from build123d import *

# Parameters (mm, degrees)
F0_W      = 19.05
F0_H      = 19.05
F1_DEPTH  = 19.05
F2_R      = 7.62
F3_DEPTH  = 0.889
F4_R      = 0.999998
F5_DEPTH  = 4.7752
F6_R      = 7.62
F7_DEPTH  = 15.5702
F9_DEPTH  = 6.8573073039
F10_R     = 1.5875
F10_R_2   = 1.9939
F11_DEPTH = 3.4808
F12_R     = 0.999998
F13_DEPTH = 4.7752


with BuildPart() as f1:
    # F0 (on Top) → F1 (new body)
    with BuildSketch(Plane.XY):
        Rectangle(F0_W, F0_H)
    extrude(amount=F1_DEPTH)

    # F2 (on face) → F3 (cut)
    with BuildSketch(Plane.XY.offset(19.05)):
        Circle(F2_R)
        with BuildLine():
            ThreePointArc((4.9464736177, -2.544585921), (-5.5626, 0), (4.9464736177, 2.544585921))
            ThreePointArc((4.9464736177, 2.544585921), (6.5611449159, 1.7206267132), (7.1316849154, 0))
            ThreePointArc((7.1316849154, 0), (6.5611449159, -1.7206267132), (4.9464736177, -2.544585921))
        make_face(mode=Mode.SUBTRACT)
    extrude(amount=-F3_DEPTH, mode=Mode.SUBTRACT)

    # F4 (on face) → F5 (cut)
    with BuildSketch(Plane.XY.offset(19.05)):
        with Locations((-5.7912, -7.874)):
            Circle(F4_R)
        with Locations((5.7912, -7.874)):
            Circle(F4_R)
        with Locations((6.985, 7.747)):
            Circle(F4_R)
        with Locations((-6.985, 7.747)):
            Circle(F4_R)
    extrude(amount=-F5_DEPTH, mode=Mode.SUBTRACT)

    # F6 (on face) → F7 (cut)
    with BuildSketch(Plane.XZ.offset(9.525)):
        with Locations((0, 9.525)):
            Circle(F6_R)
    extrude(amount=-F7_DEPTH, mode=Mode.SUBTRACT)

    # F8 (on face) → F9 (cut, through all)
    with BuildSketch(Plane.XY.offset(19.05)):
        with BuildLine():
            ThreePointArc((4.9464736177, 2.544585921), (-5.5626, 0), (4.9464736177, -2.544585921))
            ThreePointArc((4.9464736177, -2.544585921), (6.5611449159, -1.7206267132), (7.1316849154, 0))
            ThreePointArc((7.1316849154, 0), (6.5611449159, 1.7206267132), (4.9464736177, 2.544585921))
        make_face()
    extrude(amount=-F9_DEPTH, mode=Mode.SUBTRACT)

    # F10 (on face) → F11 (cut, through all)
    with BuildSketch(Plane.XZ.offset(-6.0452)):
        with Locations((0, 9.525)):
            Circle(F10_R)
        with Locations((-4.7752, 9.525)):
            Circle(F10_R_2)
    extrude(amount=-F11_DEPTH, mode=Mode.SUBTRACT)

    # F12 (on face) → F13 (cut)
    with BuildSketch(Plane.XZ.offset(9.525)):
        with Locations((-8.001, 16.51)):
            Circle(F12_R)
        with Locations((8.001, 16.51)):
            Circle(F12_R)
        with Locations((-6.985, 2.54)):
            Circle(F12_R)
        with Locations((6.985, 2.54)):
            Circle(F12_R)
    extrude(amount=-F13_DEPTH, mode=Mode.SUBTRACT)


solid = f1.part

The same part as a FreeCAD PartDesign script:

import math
import FreeCAD as App
import Part
import Sketcher
Q = App.Units.Quantity

doc = App.newDocument("Part")
body = doc.addObject("PartDesign::Body", "Body")

sketch1 = body.newObject("Sketcher::SketchObject", "Sketch")
sketch1.AttachmentSupport = (doc.getObject("XY_Plane"), [""])
sketch1.MapMode = "FlatFace"
sketch1.addGeometry(Part.LineSegment(App.Vector(-9.525, 9.525, 0), App.Vector(-9.525, -9.525, 0)), False)
sketch1.addGeometry(Part.LineSegment(App.Vector(-9.525, -9.525, 0), App.Vector(9.525, -9.525, 0)), False)
sketch1.addGeometry(Part.LineSegment(App.Vector(9.525, -9.525, 0), App.Vector(9.525, 9.525, 0)), False)
sketch1.addGeometry(Part.LineSegment(App.Vector(9.525, 9.525, 0), App.Vector(-9.525, 9.525, 0)), False)
sketch1.addConstraint(Sketcher.Constraint("Coincident", 0, 2, 1, 1))
sketch1.addConstraint(Sketcher.Constraint("Coincident", 1, 2, 2, 1))
sketch1.addConstraint(Sketcher.Constraint("Coincident", 2, 2, 3, 1))
sketch1.addConstraint(Sketcher.Constraint("Coincident", 3, 2, 0, 1))
sketch1.addConstraint(Sketcher.Constraint("Vertical", 0))
sketch1.addConstraint(Sketcher.Constraint("Horizontal", 1))
sketch1.addConstraint(Sketcher.Constraint("Vertical", 2))
sketch1.addConstraint(Sketcher.Constraint("Horizontal", 3))
sketch1.addConstraint(Sketcher.Constraint("Symmetric", 0, 2, 2, 2, -1, 1))
sketch1.addConstraint(Sketcher.Constraint("Equal", 3, 0))
sketch1.addConstraint(Sketcher.Constraint("DistanceX", 1, 1, 1, 2, Q("0.75 in")))
pad1 = body.newObject("PartDesign::Pad", "Pad")
pad1.Profile = sketch1
pad1.Length = Q("0.75 in")

sketch2 = body.newObject("Sketcher::SketchObject", "Sketch001")
sketch2.AttachmentSupport = (doc.getObject("XY_Plane"), [""])
sketch2.MapMode = "FlatFace"
sketch2.AttachmentOffset = App.Placement(App.Vector(0, 0, 0.75 * 25.4), App.Rotation())
sketch2.addGeometry(Part.Circle(App.Vector(0, 0, 0), App.Vector(0, 0, 1), 7.62), False)
sketch2.addGeometry(Part.ArcOfCircle(Part.Circle(App.Vector(4.7498, -0.1651, 0), App.Vector(0, 0, 1), 2.3876), math.radians(-85.275025), math.radians(3.965106)), False)
sketch2.addGeometry(Part.ArcOfCircle(Part.Circle(App.Vector(0, 0, 0), App.Vector(0, 0, 1), 5.5626), math.radians(27.222388), math.radians(332.777612)), False)
sketch2.addGeometry(Part.ArcOfCircle(Part.Circle(App.Vector(4.7498, 0.1651, 0), App.Vector(0, 0, 1), 2.3876), math.radians(-3.965106), math.radians(85.275025)), False)
sketch2.addConstraint(Sketcher.Constraint("Coincident", 1, 1, 2, 2))
sketch2.addConstraint(Sketcher.Constraint("Coincident", 2, 1, 3, 2))
sketch2.addConstraint(Sketcher.Constraint("Coincident", 3, 1, 1, 2))
sketch2.addConstraint(Sketcher.Constraint("Coincident", 0, 3, -1, 1))
sketch2.addConstraint(Sketcher.Constraint("Coincident", 2, 3, -1, 1))
sketch2.addConstraint(Sketcher.Constraint("Equal", 1, 3))
sketch2.addConstraint(Sketcher.Constraint("Symmetric", 1, 3, 3, 3, -1))
sketch2.addConstraint(Sketcher.Constraint("Diameter", 0, Q("0.6 in")))
sketch2.addConstraint(Sketcher.Constraint("Radius", 1, Q("0.094 in")))
sketch2.addConstraint(Sketcher.Constraint("Radius", 2, Q("0.219 in")))
sketch2.addConstraint(Sketcher.Constraint("DistanceX", -1, 1, 1, 3, Q("0.187 in")))
sketch2.addConstraint(Sketcher.Constraint("DistanceY", 1, 3, 3, 3, Q("0.013 in")))
pocket1 = body.newObject("PartDesign::Pocket", "Pocket")
pocket1.Profile = sketch2
pocket1.Length = Q("0.035 in")

sketch3 = body.newObject("Sketcher::SketchObject", "Sketch002")
sketch3.AttachmentSupport = (doc.getObject("XY_Plane"), [""])
sketch3.MapMode = "FlatFace"
sketch3.AttachmentOffset = App.Placement(App.Vector(0, 0, 0.75 * 25.4), App.Rotation())
sketch3.addGeometry(Part.Circle(App.Vector(-5.7912, -7.874, 0), App.Vector(0, 0, 1), 0.999998), False)
sketch3.addGeometry(Part.Circle(App.Vector(5.7912, -7.874, 0), App.Vector(0, 0, 1), 0.999998), False)
sketch3.addGeometry(Part.Circle(App.Vector(6.985, 7.747, 0), App.Vector(0, 0, 1), 0.999998), False)
sketch3.addGeometry(Part.Circle(App.Vector(-6.985, 7.747, 0), App.Vector(0, 0, 1), 0.999998), False)
sketch3.addConstraint(Sketcher.Constraint("Equal", 0, 1))
sketch3.addConstraint(Sketcher.Constraint("Equal", 1, 2))
sketch3.addConstraint(Sketcher.Constraint("Equal", 2, 3))
sketch3.addConstraint(Sketcher.Constraint("Symmetric", 0, 3, 1, 3, -2))
sketch3.addConstraint(Sketcher.Constraint("Symmetric", 2, 3, 3, 3, -2))
sketch3.addConstraint(Sketcher.Constraint("DistanceY", 0, 3, -1, 1, Q("0.31 in")))
sketch3.addConstraint(Sketcher.Constraint("DistanceX", 3, 3, 2, 3, Q("0.55 in")))
sketch3.addConstraint(Sketcher.Constraint("DistanceX", 0, 3, -1, 1, Q("0.228 in")))
sketch3.addConstraint(Sketcher.Constraint("DistanceY", -1, 1, 2, 3, Q("0.305 in")))
sketch3.addConstraint(Sketcher.Constraint("Diameter", 0, Q("1.999996 mm")))
pocket2 = body.newObject("PartDesign::Pocket", "Pocket001")
pocket2.Profile = sketch3
pocket2.Length = Q("0.188 in")

sketch4 = body.newObject("Sketcher::SketchObject", "Sketch003")
sketch4.AttachmentSupport = (doc.getObject("XZ_Plane"), [""])
sketch4.MapMode = "FlatFace"
sketch4.AttachmentOffset = App.Placement(App.Vector(0, 0, 0.375 * 25.4), App.Rotation())
sketch4.addGeometry(Part.Circle(App.Vector(0, 9.525, 0), App.Vector(0, 0, 1), 7.62), False)
sketch4.addConstraint(Sketcher.Constraint("PointOnObject", 0, 3, -2))
sketch4.addConstraint(Sketcher.Constraint("Diameter", 0, Q("0.6 in")))
sketch4.addConstraint(Sketcher.Constraint("DistanceY", -1, 1, 0, 3, Q("0.375 in")))
pocket3 = body.newObject("PartDesign::Pocket", "Pocket002")
pocket3.Profile = sketch4
pocket3.Length = Q("0.613 in")

sketch5 = body.newObject("Sketcher::SketchObject", "Sketch004")
sketch5.AttachmentSupport = (doc.getObject("XY_Plane"), [""])
sketch5.MapMode = "FlatFace"
sketch5.AttachmentOffset = App.Placement(App.Vector(0, 0, 0.75 * 25.4), App.Rotation())
sketch5.addGeometry(Part.ArcOfCircle(Part.Circle(App.Vector(0, 0, 0), App.Vector(0, 0, 1), 5.5626), math.radians(27.222388), math.radians(332.777612)), False)
sketch5.addGeometry(Part.ArcOfCircle(Part.Circle(App.Vector(4.7498, -0.1651, 0), App.Vector(0, 0, 1), 2.3876), math.radians(-85.275025), math.radians(3.965106)), False)
sketch5.addGeometry(Part.ArcOfCircle(Part.Circle(App.Vector(4.7498, 0.1651, 0), App.Vector(0, 0, 1), 2.3876), math.radians(-3.965106), math.radians(85.275025)), False)
sketch5.addConstraint(Sketcher.Constraint("Coincident", 0, 2, 1, 1))
sketch5.addConstraint(Sketcher.Constraint("Coincident", 1, 2, 2, 1))
sketch5.addConstraint(Sketcher.Constraint("Coincident", 2, 2, 0, 1))
sketch5.addConstraint(Sketcher.Constraint("Coincident", 0, 3, -1, 1))
sketch5.addConstraint(Sketcher.Constraint("Equal", 1, 2))
sketch5.addConstraint(Sketcher.Constraint("Symmetric", 1, 3, 2, 3, -1))
sketch5.addConstraint(Sketcher.Constraint("Radius", 0, Q("0.219 in")))
sketch5.addConstraint(Sketcher.Constraint("Radius", 1, Q("0.094 in")))
sketch5.addConstraint(Sketcher.Constraint("DistanceX", -1, 1, 1, 3, Q("0.187 in")))
sketch5.addConstraint(Sketcher.Constraint("DistanceY", 1, 3, 2, 3, Q("0.013 in")))
pocket4 = body.newObject("PartDesign::Pocket", "Pocket003")
pocket4.Profile = sketch5
pocket4.Length = 6.857307

sketch6 = body.newObject("Sketcher::SketchObject", "Sketch005")
sketch6.AttachmentSupport = (doc.getObject("XZ_Plane"), [""])
sketch6.MapMode = "FlatFace"
sketch6.AttachmentOffset = App.Placement(App.Vector(0, 0, -0.238 * 25.4), App.Rotation())
sketch6.addGeometry(Part.Circle(App.Vector(0, 9.525, 0), App.Vector(0, 0, 1), 1.5875), False)
sketch6.addGeometry(Part.Circle(App.Vector(-4.7752, 9.525, 0), App.Vector(0, 0, 1), 1.9939), False)
sketch6.addConstraint(Sketcher.Constraint("PointOnObject", 0, 3, -2))
sketch6.addConstraint(Sketcher.Constraint("Horizontal", 0, 3, 1, 3))
sketch6.addConstraint(Sketcher.Constraint("Diameter", 0, Q("0.125 in")))
sketch6.addConstraint(Sketcher.Constraint("Diameter", 1, Q("0.157 in")))
sketch6.addConstraint(Sketcher.Constraint("DistanceY", -1, 1, 0, 3, Q("0.375 in")))
sketch6.addConstraint(Sketcher.Constraint("DistanceX", 1, 3, -1, 1, Q("0.188 in")))
pocket5 = body.newObject("PartDesign::Pocket", "Pocket004")
pocket5.Profile = sketch6
pocket5.Type = "ThroughAll"

sketch7 = body.newObject("Sketcher::SketchObject", "Sketch006")
sketch7.AttachmentSupport = (doc.getObject("XZ_Plane"), [""])
sketch7.MapMode = "FlatFace"
sketch7.AttachmentOffset = App.Placement(App.Vector(0, 0, 0.375 * 25.4), App.Rotation())
sketch7.addGeometry(Part.Circle(App.Vector(-8.001, 16.51, 0), App.Vector(0, 0, 1), 0.999998), False)
sketch7.addGeometry(Part.Circle(App.Vector(8.001, 16.51, 0), App.Vector(0, 0, 1), 0.999998), False)
sketch7.addGeometry(Part.Circle(App.Vector(-6.985, 2.54, 0), App.Vector(0, 0, 1), 0.999998), False)
sketch7.addGeometry(Part.Circle(App.Vector(6.985, 2.54, 0), App.Vector(0, 0, 1), 0.999998), False)
sketch7.addConstraint(Sketcher.Constraint("Equal", 0, 1))
sketch7.addConstraint(Sketcher.Constraint("Equal", 1, 2))
sketch7.addConstraint(Sketcher.Constraint("Equal", 2, 3))
sketch7.addConstraint(Sketcher.Constraint("Symmetric", 0, 3, 1, 3, -2))
sketch7.addConstraint(Sketcher.Constraint("Symmetric", 2, 3, 3, 3, -2))
sketch7.addConstraint(Sketcher.Constraint("DistanceY", -1, 1, 2, 3, Q("0.1 in")))
sketch7.addConstraint(Sketcher.Constraint("DistanceY", -1, 1, 0, 3, Q("0.65 in")))
sketch7.addConstraint(Sketcher.Constraint("DistanceX", 0, 3, 1, 3, Q("0.63 in")))
sketch7.addConstraint(Sketcher.Constraint("DistanceX", 0, 3, 2, 3, Q("0.04 in")))
sketch7.addConstraint(Sketcher.Constraint("Diameter", 0, Q("1.999996 mm")))
pocket6 = body.newObject("PartDesign::Pocket", "Pocket005")
pocket6.Profile = sketch7
pocket6.Length = Q("0.188 in")

doc.recompute()
